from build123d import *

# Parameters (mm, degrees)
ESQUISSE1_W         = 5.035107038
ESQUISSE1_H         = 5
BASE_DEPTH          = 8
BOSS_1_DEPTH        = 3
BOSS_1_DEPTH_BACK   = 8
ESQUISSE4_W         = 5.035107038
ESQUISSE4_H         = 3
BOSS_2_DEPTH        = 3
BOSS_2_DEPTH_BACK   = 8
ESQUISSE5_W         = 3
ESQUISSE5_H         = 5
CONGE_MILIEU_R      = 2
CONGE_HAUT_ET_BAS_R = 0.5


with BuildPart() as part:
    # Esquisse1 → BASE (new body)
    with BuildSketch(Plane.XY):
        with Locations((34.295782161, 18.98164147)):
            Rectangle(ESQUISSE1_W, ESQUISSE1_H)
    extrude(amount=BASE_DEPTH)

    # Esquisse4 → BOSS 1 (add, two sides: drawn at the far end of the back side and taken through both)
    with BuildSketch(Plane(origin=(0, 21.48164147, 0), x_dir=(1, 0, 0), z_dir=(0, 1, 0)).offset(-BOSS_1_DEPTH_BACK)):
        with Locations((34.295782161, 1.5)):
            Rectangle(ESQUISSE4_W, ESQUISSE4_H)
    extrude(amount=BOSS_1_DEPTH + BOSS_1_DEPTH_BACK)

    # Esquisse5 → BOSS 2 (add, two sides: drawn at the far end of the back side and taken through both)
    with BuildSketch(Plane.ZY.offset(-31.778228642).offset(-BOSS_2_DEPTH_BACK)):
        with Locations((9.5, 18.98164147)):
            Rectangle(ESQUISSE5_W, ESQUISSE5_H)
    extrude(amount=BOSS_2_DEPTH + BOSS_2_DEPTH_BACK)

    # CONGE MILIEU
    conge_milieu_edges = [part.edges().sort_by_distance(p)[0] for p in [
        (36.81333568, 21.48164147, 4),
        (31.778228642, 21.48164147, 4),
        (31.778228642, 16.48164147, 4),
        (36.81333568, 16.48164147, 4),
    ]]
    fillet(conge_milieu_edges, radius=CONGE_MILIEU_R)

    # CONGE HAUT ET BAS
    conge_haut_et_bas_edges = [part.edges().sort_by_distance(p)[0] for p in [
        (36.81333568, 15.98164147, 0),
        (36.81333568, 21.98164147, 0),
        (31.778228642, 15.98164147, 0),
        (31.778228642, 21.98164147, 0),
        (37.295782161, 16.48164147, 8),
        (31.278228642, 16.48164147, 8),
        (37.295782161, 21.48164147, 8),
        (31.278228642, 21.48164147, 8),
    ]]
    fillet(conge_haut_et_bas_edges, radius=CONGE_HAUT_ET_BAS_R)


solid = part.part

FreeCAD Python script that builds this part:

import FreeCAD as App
import Part
import Sketcher
Q = App.Units.Quantity


def edges_at(feature, points):
    """Names of the edges that pass closest to the given points."""
    edges = feature.Shape.Edges
    near = lambda p: min(range(len(edges)), key=lambda i: edges[i].distToShape(Part.Vertex(*p))[0])
    return sorted({f"Edge{near(p) + 1}" for p in points})


def add_polygon(sketch, points):
    """Adds a closed chain of lines whose ends are joined by coincident constraints."""
    first, n = sketch.GeometryCount, len(points)
    for a, b in zip(points, points[1:] + points[:1]):
        sketch.addGeometry(Part.LineSegment(App.Vector(*a, 0), App.Vector(*b, 0)), False)
    for i in range(n):
        sketch.addConstraint(Sketcher.Constraint("Coincident", first + i, 2, first + (i + 1) % n, 1))

doc = App.newDocument("Part")
body = doc.addObject("PartDesign::Body", "Body")

sketch1 = body.newObject("Sketcher::SketchObject", "Sketch")
sketch1.AttachmentSupport = (doc.getObject("XY_Plane"), [""])
sketch1.MapMode = "FlatFace"
add_polygon(sketch1, [(31.778229, 21.481641), (31.778229, 16.481641), (36.813336, 16.481641), (36.813336, 21.481641)])
sketch1.addConstraint([
    Sketcher.Constraint("Vertical", 0),
    Sketcher.Constraint("Horizontal", 1),
    Sketcher.Constraint("Vertical", 2),
    Sketcher.Constraint("Horizontal", 3),
    Sketcher.Constraint("DistanceY", 0, 2, 0, 1, Q("5 mm")),
    Sketcher.Constraint("DistanceX", 1, 1, 1, 2, Q("5.035107 mm")),
    Sketcher.Constraint("DistanceX", -1, 1, 0, 2, Q("31.778229 mm")),
    Sketcher.Constraint("DistanceY", -1, 1, 0, 2, Q("16.481641 mm")),
])
pad1 = body.newObject("PartDesign::Pad", "Pad")
pad1.Profile = sketch1
pad1.Length = 8

sketch2 = body.newObject("Sketcher::SketchObject", "Sketch001")
sketch2.AttachmentSupport = (doc.getObject("XZ_Plane"), [""])
sketch2.MapMode = "FlatFace"
sketch2.AttachmentOffset = App.Placement(App.Vector(0, 0, -21.481641), App.Rotation())
add_polygon(sketch2, [(31.778229, -3), (31.778229, 0), (36.813336, 0), (36.813336, -3)])
sketch2.addConstraint([
    Sketcher.Constraint("Vertical", 0),
    Sketcher.Constraint("Horizontal", 1),
    Sketcher.Constraint("Vertical", 2),
    Sketcher.Constraint("Horizontal", 3),
    Sketcher.Constraint("PointOnObject", 0, 2, -1),
    Sketcher.Constraint("DistanceY", 0, 1, 0, 2, Q("3 mm")),
    Sketcher.Constraint("DistanceX", 1, 1, 1, 2, Q("5.035107 mm")),
    Sketcher.Constraint("DistanceX", -1, 1, 0, 2, Q("31.778229 mm")),
])
pad2 = body.newObject("PartDesign::Pad", "Pad001")
pad2.Profile = sketch2
pad2.Type = "TwoLengths"
pad2.Length = 3
pad2.Length2 = 8
pad2.Reversed = True

sketch3 = body.newObject("Sketcher::SketchObject", "Sketch002")
sketch3.AttachmentSupport = (doc.getObject("YZ_Plane"), [""])
sketch3.MapMode = "FlatFace"
sketch3.AttachmentOffset = App.Placement(App.Vector(0, 0, 31.778229), App.Rotation())
add_polygon(sketch3, [(21.481641, 8), (16.481641, 8), (16.481641, 11), (21.481641, 11)])
sketch3.addConstraint([
    Sketcher.Constraint("Horizontal", 0),
    Sketcher.Constraint("Vertical", 1),
    Sketcher.Constraint("Horizontal", 2),
    Sketcher.Constraint("Vertical", 3),
    Sketcher.Constraint("DistanceX", 0, 2, 0, 1, Q("5 mm")),
    Sketcher.Constraint("DistanceY", 1, 1, 1, 2, Q("3 mm")),
    Sketcher.Constraint("DistanceY", -1, 1, 0, 2, Q("8 mm")),
    Sketcher.Constraint("DistanceX", -1, 1, 0, 2, Q("16.481641 mm")),
])
pad3 = body.newObject("PartDesign::Pad", "Pad002")
pad3.Profile = sketch3
pad3.Type = "TwoLengths"
pad3.Length = 3
pad3.Length2 = 8
pad3.Reversed = True
doc.recompute()

fillet = body.newObject("PartDesign::Fillet", "Fillet")
fillet.Base = (pad3, edges_at(pad3, [
    (36.813, 21.482, 4),
    (31.778, 21.482, 4),
    (31.778, 16.482, 4),
    (36.813, 16.482, 4),
]))
fillet.Radius = 2
doc.recompute()

fillet2 = body.newObject("PartDesign::Fillet", "Fillet001")
fillet2.Base = (fillet, edges_at(fillet, [
    (36.813, 15.982, 0),
    (36.813, 21.982, 0),
    (31.778, 15.982, 0),
    (31.778, 21.982, 0),
    (37.296, 16.482, 8),
    (31.278, 16.482, 8),
    (37.296, 21.482, 8),
    (31.278, 21.482, 8),
]))
fillet2.Radius = 0.5

doc.recompute()
